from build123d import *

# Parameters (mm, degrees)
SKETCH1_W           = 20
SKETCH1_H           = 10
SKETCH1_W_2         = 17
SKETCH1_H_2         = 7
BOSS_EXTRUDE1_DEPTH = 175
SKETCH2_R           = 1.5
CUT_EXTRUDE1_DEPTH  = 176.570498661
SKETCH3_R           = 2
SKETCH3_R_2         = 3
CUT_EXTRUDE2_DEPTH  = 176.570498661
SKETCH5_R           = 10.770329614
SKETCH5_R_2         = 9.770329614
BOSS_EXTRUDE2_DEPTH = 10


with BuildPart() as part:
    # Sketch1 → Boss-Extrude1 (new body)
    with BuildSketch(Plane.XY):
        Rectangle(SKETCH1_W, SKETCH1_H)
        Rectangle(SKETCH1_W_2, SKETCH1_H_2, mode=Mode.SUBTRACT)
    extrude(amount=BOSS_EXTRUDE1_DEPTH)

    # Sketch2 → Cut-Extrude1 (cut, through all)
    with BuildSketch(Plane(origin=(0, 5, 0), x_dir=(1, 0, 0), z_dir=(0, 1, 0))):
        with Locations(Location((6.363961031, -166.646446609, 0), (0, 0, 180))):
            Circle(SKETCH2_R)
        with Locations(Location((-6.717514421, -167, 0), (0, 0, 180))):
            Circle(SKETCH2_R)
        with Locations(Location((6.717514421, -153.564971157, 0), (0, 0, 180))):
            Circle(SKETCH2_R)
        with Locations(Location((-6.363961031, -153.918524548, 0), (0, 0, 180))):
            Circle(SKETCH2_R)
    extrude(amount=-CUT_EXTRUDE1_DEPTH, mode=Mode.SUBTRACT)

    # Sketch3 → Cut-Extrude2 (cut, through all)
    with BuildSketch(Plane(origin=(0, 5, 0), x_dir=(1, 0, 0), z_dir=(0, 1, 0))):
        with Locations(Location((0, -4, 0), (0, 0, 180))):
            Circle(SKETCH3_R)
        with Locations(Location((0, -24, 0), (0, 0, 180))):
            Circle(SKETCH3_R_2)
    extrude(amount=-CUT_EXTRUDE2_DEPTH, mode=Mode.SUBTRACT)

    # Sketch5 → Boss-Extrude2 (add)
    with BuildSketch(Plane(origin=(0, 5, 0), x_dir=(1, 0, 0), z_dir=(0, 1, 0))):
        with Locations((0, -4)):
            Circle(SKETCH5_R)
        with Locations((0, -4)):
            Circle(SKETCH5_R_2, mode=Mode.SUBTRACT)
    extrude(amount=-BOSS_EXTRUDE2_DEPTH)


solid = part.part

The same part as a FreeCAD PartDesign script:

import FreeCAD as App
import Part
import Sketcher
from FreeCAD import Vector
Q = App.Units.Quantity


def add_polygon(sketch, points):
    """Adds a closed chain of lines whose ends are joined by coincident constraints."""
    first, n = sketch.GeometryCount, len(points)
    for a, b in zip(points, points[1:] + points[:1]):
        sketch.addGeometry(Part.LineSegment(App.Vector(*a, 0), App.Vector(*b, 0)), False)
    for i in range(n):
        sketch.addConstraint(Sketcher.Constraint("Coincident", first + i, 2, first + (i + 1) % n, 1))

doc = App.newDocument("Part")
body = doc.addObject("PartDesign::Body", "Body")

# Sketch on XY plane
sketch1 = body.newObject("Sketcher::SketchObject", "Sketch")
sketch1.AttachmentSupport = (doc.getObject("XY_Plane"), [""])
sketch1.MapMode = "FlatFace"
add_polygon(sketch1, [(-10, 5), (-10, -5), (10, -5), (10, 5)])  # lines 0-3
add_polygon(sketch1, [(8, -4), (-8, -4), (-8, 4), (8, 4)])  # lines 4-7
sketch1.addConstraint([
    Sketcher.Constraint("Vertical", 0),
    Sketcher.Constraint("Horizontal", 1),
    Sketcher.Constraint("Vertical", 2),
    Sketcher.Constraint("Horizontal", 3),
    Sketcher.Constraint("Horizontal", 4),
    Sketcher.Constraint("Vertical", 5),
    Sketcher.Constraint("Horizontal", 6),
    Sketcher.Constraint("Vertical", 7),
    Sketcher.Constraint("Symmetric", 0, 2, 2, 2, -1, 1),
    Sketcher.Constraint("Symmetric", 4, 2, 6, 2, -1, 1),
    Sketcher.Constraint("DistanceX", 1, 1, 1, 2, Q("20 mm")),
    Sketcher.Constraint("DistanceX", 4, 2, 4, 1, Q("17 mm")),
    Sketcher.Constraint("DistanceY", 0, 2, 0, 1, Q("10 mm")),
    Sketcher.Constraint("DistanceY", 5, 1, 5, 2, Q("7 mm")),
])
pad1 = body.newObject("PartDesign::Pad", "Pad")
pad1.Profile = sketch1
pad1.Length = 175

# Sketch on XZ plane
sketch2 = body.newObject("Sketcher::SketchObject", "Sketch001")
sketch2.AttachmentSupport = (doc.getObject("XZ_Plane"), [""])
sketch2.MapMode = "FlatFace"
sketch2.AttachmentOffset = App.Placement(Vector(0, 0, -5), App.Rotation())
sketch2.addGeometry([
    Part.Circle(Vector(6.4, 166.6, 0), Vector(0, 0, 1), 1.5),
    Part.Circle(Vector(-6.7, 167, 0), Vector(0, 0, 1), 1.5),
    Part.Circle(Vector(6.7, 153.6, 0), Vector(0, 0, 1), 1.5),
    Part.Circle(Vector(-6.4, 153.9, 0), Vector(0, 0, 1), 1.5),
], False)
sketch2.addConstraint([
    Sketcher.Constraint("Equal", 0, 1),
    Sketcher.Constraint("Equal", 1, 2),
    Sketcher.Constraint("Equal", 2, 3),
    Sketcher.Constraint("Diameter", 0, Q("3 mm")),
    Sketcher.Constraint("DistanceY", -1, 1, 1, 3, Q("167 mm")),
    Sketcher.Constraint("DistanceX", -1, 1, 0, 3, Q("6.363961 mm")),
    Sketcher.Constraint("DistanceY", -1, 1, 2, 3, Q("153.564971 mm")),
    Sketcher.Constraint("DistanceX", 3, 3, -1, 1, Q("6.363961 mm")),
    Sketcher.Constraint("DistanceX", 1, 3, 2, 3, Q("13.435029 mm")),
    Sketcher.Constraint("DistanceY", -1, 1, 0, 3, Q("166.646447 mm")),
    Sketcher.Constraint("DistanceX", 1, 3, -1, 1, Q("6.717514 mm")),
    Sketcher.Constraint("DistanceY", -1, 1, 3, 3, Q("153.918525 mm")),
])
pocket1 = body.newObject("PartDesign::Pocket", "Pocket")
pocket1.Profile = sketch2
pocket1.Type = "ThroughAll"
pocket1.Reversed = True

# Sketch on XZ plane
sketch3 = body.newObject("Sketcher::SketchObject", "Sketch002")
sketch3.AttachmentSupport = (doc.getObject("XZ_Plane"), [""])
sketch3.MapMode = "FlatFace"
sketch3.AttachmentOffset = App.Placement(Vector(0, 0, -5), App.Rotation())
sketch3.addGeometry([
    Part.Circle(Vector(0, 4, 0), Vector(0, 0, 1), 2),
    Part.Circle(Vector(0, 24, 0), Vector(0, 0, 1), 3),
], False)
sketch3.addConstraint([
    Sketcher.Constraint("PointOnObject", 0, 3, -2),
    Sketcher.Constraint("PointOnObject", 1, 3, -2),
    Sketcher.Constraint("Diameter", 0, Q("4 mm")),
    Sketcher.Constraint("Diameter", 1, Q("6 mm")),
    Sketcher.Constraint("DistanceY", -1, 1, 0, 3, Q("4 mm")),
    Sketcher.Constraint("DistanceY", -1, 1, 1, 3, Q("24 mm")),
])
pocket2 = body.newObject("PartDesign::Pocket", "Pocket001")
pocket2.Profile = sketch3
pocket2.Type = "ThroughAll"
pocket2.Reversed = True

# Sketch on XZ plane
sketch4 = body.newObject("Sketcher::SketchObject", "Sketch003")
sketch4.AttachmentSupport = (doc.getObject("XZ_Plane"), [""])
sketch4.MapMode = "FlatFace"
sketch4.AttachmentOffset = App.Placement(Vector(0, 0, -5), App.Rotation())
sketch4.addGeometry([
    Part.Circle(Vector(0, 4, 0), Vector(0, 0, 1), 11),
    Part.Circle(Vector(0, 4, 0), Vector(0, 0, 1), 10),
], False)
sketch4.addConstraint([
    Sketcher.Constraint("Coincident", 1, 3, 0, 3),
    Sketcher.Constraint("PointOnObject", 0, 3, -2),
    Sketcher.Constraint("DistanceY", -1, 1, 0, 3, Q("4 mm")),
    Sketcher.Constraint("Diameter", 0, Q("21.540659 mm")),
    Sketcher.Constraint("Diameter", 1, Q("19.540659 mm")),
])
pad2 = body.newObject("PartDesign::Pad", "Pad001")
pad2.Profile = sketch4
pad2.Length = 10

doc.recompute()
